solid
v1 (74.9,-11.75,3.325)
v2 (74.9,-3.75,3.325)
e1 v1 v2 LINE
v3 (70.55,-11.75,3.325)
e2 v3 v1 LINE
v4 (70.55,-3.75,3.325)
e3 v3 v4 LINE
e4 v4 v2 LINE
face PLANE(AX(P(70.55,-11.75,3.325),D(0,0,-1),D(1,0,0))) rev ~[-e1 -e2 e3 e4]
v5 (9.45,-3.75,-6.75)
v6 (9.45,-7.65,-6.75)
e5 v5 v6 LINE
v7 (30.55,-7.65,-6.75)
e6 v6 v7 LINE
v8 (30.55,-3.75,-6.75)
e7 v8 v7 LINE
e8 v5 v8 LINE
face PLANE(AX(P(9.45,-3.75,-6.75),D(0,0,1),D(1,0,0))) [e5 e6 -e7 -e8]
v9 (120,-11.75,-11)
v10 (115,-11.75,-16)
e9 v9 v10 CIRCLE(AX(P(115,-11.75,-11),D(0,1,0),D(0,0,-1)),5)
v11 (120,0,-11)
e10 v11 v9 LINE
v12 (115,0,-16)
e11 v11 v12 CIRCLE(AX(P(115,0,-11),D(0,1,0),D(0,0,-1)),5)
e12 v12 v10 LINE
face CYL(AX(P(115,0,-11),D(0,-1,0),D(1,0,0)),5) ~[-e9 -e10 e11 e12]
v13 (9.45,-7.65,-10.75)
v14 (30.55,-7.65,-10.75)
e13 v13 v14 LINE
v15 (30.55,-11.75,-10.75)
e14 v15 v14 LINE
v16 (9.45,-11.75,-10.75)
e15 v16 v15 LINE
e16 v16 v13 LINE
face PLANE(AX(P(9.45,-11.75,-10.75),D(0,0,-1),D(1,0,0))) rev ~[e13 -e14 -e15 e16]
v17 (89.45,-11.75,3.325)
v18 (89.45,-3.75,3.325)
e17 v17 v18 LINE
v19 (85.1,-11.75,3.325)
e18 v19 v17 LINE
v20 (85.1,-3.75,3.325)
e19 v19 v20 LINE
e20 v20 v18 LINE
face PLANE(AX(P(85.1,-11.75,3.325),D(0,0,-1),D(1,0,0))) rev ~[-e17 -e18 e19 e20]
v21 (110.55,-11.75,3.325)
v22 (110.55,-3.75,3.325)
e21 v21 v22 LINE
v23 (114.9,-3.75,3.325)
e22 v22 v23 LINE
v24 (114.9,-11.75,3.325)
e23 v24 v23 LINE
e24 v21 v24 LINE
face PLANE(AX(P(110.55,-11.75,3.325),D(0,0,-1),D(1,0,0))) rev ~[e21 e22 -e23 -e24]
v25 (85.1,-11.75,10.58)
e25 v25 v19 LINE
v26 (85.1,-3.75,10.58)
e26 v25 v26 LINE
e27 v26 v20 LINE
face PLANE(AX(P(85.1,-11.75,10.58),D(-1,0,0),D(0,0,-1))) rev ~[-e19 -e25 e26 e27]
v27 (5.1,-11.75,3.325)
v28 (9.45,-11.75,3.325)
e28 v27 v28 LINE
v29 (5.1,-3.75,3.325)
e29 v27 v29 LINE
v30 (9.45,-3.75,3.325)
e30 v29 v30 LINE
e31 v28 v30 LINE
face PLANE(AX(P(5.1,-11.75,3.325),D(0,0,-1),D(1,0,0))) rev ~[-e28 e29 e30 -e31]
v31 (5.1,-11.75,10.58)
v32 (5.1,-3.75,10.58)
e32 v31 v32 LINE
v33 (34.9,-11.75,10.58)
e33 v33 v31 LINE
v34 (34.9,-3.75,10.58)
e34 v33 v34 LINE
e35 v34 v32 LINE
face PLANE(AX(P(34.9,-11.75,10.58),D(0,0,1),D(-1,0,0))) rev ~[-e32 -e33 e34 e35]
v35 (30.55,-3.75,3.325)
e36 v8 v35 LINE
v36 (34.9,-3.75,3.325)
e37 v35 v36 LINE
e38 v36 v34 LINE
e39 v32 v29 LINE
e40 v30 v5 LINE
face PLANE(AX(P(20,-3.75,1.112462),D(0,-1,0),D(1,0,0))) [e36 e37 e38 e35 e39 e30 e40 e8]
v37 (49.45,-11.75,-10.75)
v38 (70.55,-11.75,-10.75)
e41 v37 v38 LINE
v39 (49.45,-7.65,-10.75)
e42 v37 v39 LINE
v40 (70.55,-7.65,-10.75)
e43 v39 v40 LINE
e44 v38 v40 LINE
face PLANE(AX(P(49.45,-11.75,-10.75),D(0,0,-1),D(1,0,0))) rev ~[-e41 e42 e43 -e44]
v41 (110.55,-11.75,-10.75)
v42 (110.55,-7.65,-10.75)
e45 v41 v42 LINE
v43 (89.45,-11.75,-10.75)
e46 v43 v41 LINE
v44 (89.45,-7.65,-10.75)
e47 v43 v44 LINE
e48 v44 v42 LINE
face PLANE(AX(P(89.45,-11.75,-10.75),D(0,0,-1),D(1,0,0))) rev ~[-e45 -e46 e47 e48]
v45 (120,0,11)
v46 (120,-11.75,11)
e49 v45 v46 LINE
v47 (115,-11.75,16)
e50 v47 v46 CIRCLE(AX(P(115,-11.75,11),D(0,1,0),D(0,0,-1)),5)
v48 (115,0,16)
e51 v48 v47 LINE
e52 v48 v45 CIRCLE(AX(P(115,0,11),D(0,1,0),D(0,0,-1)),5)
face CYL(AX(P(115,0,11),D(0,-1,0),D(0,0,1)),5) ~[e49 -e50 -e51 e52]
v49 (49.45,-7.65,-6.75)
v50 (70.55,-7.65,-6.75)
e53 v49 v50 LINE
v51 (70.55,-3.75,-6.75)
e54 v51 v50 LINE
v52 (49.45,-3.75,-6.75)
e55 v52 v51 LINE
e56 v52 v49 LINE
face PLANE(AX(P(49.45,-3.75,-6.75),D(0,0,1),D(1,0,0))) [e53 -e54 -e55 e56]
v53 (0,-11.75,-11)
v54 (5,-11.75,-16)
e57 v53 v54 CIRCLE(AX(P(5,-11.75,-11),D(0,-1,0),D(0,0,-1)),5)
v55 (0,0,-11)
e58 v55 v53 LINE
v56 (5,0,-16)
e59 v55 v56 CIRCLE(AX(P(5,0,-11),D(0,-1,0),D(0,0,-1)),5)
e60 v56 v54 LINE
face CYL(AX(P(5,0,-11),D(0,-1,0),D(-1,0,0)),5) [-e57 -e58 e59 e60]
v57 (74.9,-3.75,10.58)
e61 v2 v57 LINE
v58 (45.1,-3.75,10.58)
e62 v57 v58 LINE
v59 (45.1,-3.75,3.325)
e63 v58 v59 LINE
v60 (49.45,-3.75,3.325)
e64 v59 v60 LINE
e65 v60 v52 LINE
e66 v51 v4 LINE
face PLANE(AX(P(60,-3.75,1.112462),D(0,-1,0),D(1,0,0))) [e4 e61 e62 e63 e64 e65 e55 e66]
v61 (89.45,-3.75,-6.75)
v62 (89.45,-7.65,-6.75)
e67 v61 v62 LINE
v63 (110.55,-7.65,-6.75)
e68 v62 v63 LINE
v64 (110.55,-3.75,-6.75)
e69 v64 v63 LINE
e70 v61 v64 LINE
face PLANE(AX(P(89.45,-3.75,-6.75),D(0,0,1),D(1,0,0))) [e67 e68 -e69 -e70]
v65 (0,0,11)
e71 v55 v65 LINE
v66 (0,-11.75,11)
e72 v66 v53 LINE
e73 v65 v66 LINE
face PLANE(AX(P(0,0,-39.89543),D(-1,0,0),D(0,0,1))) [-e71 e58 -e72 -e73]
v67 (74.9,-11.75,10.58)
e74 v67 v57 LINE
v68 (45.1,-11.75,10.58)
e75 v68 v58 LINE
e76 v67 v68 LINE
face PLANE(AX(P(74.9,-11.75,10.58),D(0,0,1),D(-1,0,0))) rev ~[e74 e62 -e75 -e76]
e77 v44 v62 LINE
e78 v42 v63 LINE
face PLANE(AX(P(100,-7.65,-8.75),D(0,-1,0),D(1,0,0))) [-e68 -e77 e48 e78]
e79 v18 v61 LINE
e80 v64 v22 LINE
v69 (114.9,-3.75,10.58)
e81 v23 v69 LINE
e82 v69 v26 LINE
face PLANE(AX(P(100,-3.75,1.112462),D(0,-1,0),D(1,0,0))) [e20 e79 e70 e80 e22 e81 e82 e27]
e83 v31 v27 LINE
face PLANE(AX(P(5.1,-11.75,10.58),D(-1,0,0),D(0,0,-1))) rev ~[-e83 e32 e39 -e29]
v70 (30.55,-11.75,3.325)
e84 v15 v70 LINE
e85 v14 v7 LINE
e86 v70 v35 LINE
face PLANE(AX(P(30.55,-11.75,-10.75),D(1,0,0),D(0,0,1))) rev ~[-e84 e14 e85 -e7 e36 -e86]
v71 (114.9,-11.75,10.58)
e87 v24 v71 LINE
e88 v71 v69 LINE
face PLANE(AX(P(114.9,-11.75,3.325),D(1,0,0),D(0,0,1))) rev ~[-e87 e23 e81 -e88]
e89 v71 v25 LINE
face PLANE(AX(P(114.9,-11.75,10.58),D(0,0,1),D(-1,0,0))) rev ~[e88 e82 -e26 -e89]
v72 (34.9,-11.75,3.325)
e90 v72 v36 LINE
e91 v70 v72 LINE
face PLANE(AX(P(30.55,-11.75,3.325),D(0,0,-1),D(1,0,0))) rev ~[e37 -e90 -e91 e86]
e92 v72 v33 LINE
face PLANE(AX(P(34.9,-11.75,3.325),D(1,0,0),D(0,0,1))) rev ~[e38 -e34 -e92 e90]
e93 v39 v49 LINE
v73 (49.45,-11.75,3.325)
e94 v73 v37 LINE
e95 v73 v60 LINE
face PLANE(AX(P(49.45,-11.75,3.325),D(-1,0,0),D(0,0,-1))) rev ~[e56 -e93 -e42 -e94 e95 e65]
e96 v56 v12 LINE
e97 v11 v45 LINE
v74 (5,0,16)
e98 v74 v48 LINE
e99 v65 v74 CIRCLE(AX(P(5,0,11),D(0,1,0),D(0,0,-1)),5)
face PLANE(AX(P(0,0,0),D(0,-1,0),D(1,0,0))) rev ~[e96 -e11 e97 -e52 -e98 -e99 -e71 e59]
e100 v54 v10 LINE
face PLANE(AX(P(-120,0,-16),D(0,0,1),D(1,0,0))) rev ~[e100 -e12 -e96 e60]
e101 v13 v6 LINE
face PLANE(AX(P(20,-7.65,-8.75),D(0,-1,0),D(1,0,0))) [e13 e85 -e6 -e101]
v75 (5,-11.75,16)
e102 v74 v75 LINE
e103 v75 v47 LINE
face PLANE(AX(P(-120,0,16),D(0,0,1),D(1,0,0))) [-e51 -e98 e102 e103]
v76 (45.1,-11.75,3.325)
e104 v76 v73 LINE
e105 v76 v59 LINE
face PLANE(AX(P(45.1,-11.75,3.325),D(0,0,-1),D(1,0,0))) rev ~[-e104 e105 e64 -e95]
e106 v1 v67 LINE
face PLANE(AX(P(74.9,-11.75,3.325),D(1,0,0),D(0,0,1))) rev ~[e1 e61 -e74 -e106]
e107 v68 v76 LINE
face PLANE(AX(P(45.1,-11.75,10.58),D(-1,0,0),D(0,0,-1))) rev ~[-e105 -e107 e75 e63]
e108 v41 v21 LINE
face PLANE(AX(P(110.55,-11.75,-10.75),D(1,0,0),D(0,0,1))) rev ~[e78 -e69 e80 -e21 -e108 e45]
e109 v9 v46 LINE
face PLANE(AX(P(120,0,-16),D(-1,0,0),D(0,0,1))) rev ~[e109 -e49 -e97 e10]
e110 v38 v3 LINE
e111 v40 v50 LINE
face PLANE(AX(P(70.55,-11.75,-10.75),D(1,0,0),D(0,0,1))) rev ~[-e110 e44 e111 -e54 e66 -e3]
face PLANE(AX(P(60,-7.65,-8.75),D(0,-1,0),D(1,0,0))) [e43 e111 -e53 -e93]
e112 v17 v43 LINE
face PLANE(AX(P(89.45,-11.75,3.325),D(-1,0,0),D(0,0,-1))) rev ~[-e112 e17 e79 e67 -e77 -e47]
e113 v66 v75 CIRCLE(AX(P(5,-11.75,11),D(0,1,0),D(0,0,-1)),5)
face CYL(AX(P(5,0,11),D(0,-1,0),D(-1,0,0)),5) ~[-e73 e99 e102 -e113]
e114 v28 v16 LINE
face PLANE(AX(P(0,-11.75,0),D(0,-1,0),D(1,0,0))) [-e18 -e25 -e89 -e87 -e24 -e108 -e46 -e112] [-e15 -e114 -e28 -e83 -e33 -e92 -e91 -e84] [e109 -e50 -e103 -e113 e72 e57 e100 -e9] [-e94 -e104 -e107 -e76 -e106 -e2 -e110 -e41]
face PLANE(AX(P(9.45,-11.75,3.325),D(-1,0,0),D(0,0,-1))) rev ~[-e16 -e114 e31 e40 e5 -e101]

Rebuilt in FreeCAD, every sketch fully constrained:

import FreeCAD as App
import Part
import Sketcher

V = App.Vector


def edges_at(feature, points):
    """Names of the edges that pass closest to the given points."""
    edges = feature.Shape.Edges
    near = lambda p: min(range(len(edges)), key=lambda i: edges[i].distToShape(Part.Vertex(*p))[0])
    return sorted({f"Edge{near(p) + 1}" for p in points})


def add_polygon(sketch, points):
    """Adds a closed chain of lines whose ends are joined by coincident constraints."""
    first, n = sketch.GeometryCount, len(points)
    for a, b in zip(points, points[1:] + points[:1]):
        sketch.addGeometry(Part.LineSegment(App.Vector(*a, 0), App.Vector(*b, 0)), False)
    for i in range(n):
        sketch.addConstraint(Sketcher.Constraint("Coincident", first + i, 2, first + (i + 1) % n, 1))

doc = App.newDocument("Part")
body = doc.addObject("PartDesign::Body", "Body")

# Sketch on XZ plane
sketch1 = doc.addObject("Sketcher::SketchObject", "Sketch")
body.addObject(sketch1)
sketch1.AttachmentSupport = (doc.XZ_Plane, [""])
sketch1.MapMode = "FlatFace"
add_polygon(sketch1, [(-120, 16), (-120, -16), (120, -16), (120, 16)])  # lines 0-3
sketch1.addConstraint([
    Sketcher.Constraint("Vertical", 0),
    Sketcher.Constraint("Horizontal", 1),
    Sketcher.Constraint("Vertical", 2),
    Sketcher.Constraint("Horizontal", 3),
    Sketcher.Constraint("Symmetric", 0, 2, 2, 2, -1, 1),
    Sketcher.Constraint("DistanceX", 1, 1, 1, 2, 240.0),
    Sketcher.Constraint("DistanceY", 0, 2, 0, 1, 32.0),
])
pad1 = doc.addObject("PartDesign::Pad", "Pad")
body.addObject(pad1)
pad1.Profile = sketch1
pad1.Length = 11.75

# Sketch on XZ plane
sketch2 = doc.addObject("Sketcher::SketchObject", "Sketch001")
body.addObject(sketch2)
sketch2.AttachmentSupport = (doc.XZ_Plane, [""])
sketch2.MapMode = "FlatFace"
sketch2.AttachmentOffset = App.Placement(V(0, 0, 11.75), App.Rotation())
add_polygon(sketch2, [(114.9, 10.6), (85.1, 10.6), (85.1, 3.3), (89.5, 3.3), (89.5, -10.8), (110.5, -10.8), (110.5, 3.3), (114.9, 3.3)])  # lines 0-7
add_polygon(sketch2, [(74.9, 10.6), (45.1, 10.6), (45.1, 3.3), (49.5, 3.3), (49.5, -10.8), (70.5, -10.8), (70.5, 3.3), (74.9, 3.3)])  # lines 8-15
add_polygon(sketch2, [(34.9, 10.6), (5.1, 10.6), (5.1, 3.3), (9.4, 3.3), (9.4, -10.8), (30.6, -10.8), (30.6, 3.3), (34.9, 3.3)])  # lines 16-23
add_polygon(sketch2, [(-5.1, 10.6), (-34.9, 10.6), (-34.9, 3.3), (-30.6, 3.3), (-30.6, -10.8), (-9.4, -10.8), (-9.4, 3.3), (-5.1, 3.3)])  # lines 24-31
add_polygon(sketch2, [(-45.1, 10.6), (-74.9, 10.6), (-74.9, 3.3), (-70.5, 3.3), (-70.5, -10.8), (-49.5, -10.8), (-49.5, 3.3), (-45.1, 3.3)])  # lines 32-39
add_polygon(sketch2, [(-85.1, 10.6), (-114.9, 10.6), (-114.9, 3.3), (-110.5, 3.3), (-110.5, -10.8), (-89.5, -10.8), (-89.5, 3.3), (-85.1, 3.3)])  # lines 40-47
sketch2.addConstraint([
    Sketcher.Constraint("Horizontal", 0),
    Sketcher.Constraint("Vertical", 1),
    Sketcher.Constraint("Horizontal", 2),
    Sketcher.Constraint("Vertical", 3),
    Sketcher.Constraint("Horizontal", 4),
    Sketcher.Constraint("Vertical", 5),
    Sketcher.Constraint("Horizontal", 6),
    Sketcher.Constraint("Vertical", 7),
    Sketcher.Constraint("Horizontal", 8),
    Sketcher.Constraint("Vertical", 9),
    Sketcher.Constraint("Horizontal", 10),
    Sketcher.Constraint("Vertical", 11),
    Sketcher.Constraint("Horizontal", 12),
    Sketcher.Constraint("Vertical", 13),
    Sketcher.Constraint("Horizontal", 14),
    Sketcher.Constraint("Vertical", 15),
    Sketcher.Constraint("Horizontal", 16),
    Sketcher.Constraint("Vertical", 17),
    Sketcher.Constraint("Horizontal", 18),
    Sketcher.Constraint("Vertical", 19),
    Sketcher.Constraint("Horizontal", 20),
    Sketcher.Constraint("Vertical", 21),
    Sketcher.Constraint("Horizontal", 22),
    Sketcher.Constraint("Vertical", 23),
    Sketcher.Constraint("Horizontal", 24),
    Sketcher.Constraint("Vertical", 25),
    Sketcher.Constraint("Horizontal", 26),
    Sketcher.Constraint("Vertical", 27),
    Sketcher.Constraint("Horizontal", 28),
    Sketcher.Constraint("Vertical", 29),
    Sketcher.Constraint("Horizontal", 30),
    Sketcher.Constraint("Vertical", 31),
    Sketcher.Constraint("Horizontal", 32),
    Sketcher.Constraint("Vertical", 33),
    Sketcher.Constraint("Horizontal", 34),
    Sketcher.Constraint("Vertical", 35),
    Sketcher.Constraint("Horizontal", 36),
    Sketcher.Constraint("Vertical", 37),
    Sketcher.Constraint("Horizontal", 38),
    Sketcher.Constraint("Vertical", 39),
    Sketcher.Constraint("Horizontal", 40),
    Sketcher.Constraint("Vertical", 41),
    Sketcher.Constraint("Horizontal", 42),
    Sketcher.Constraint("Vertical", 43),
    Sketcher.Constraint("Horizontal", 44),
    Sketcher.Constraint("Vertical", 45),
    Sketcher.Constraint("Horizontal", 46),
    Sketcher.Constraint("Vertical", 47),
    Sketcher.Constraint("Symmetric", 23, 2, 24, 2, -2),
    Sketcher.Constraint("Symmetric", 21, 2, 26, 2, -2),
    Sketcher.Constraint("Symmetric", 19, 2, 28, 2, -2),
    Sketcher.Constraint("Symmetric", 17, 2, 30, 2, -2),
    Sketcher.Constraint("Symmetric", 15, 2, 32, 2, -2),
    Sketcher.Constraint("Symmetric", 13, 2, 34, 2, -2),
    Sketcher.Constraint("Symmetric", 11, 2, 36, 2, -2),
    Sketcher.Constraint("Symmetric", 9, 2, 38, 2, -2),
    Sketcher.Constraint("Symmetric", 7, 2, 40, 2, -2),
    Sketcher.Constraint("Symmetric", 5, 2, 42, 2, -2),
    Sketcher.Constraint("Symmetric", 3, 2, 44, 2, -2),
    Sketcher.Constraint("Symmetric", 1, 2, 46, 2, -2),
    Sketcher.Constraint("Horizontal", 2, 2, 5, 2),
    Sketcher.Constraint("Horizontal", 7, 2, 8, 2),
    Sketcher.Constraint("Horizontal", 6, 2, 9, 2),
    Sketcher.Constraint("Horizontal", 4, 2, 11, 2),
    Sketcher.Constraint("Horizontal", 10, 2, 13, 2),
    Sketcher.Constraint("Horizontal", 15, 2, 16, 2),
    Sketcher.Constraint("Horizontal", 14, 2, 17, 2),
    Sketcher.Constraint("Horizontal", 12, 2, 19, 2),
    Sketcher.Constraint("Horizontal", 18, 2, 21, 2),
    Sketcher.Constraint("Equal", 2, 6),
    Sketcher.Constraint("Equal", 0, 8),
    Sketcher.Constraint("Equal", 6, 10),
    Sketcher.Constraint("Equal", 4, 12),
    Sketcher.Constraint("Equal", 8, 16),
    Sketcher.Constraint("Equal", 14, 18),
    Sketcher.Constraint("Equal", 12, 20),
    Sketcher.Constraint("DistanceX", 0, 2, 0, 1, 29.8),
    Sketcher.Constraint("DistanceX", 4, 1, 4, 2, 21.1),
    Sketcher.Constraint("DistanceX", 8, 2, 0, 2, 40.0),
    Sketcher.Constraint("DistanceX", 16, 2, 8, 2, 40.0),
    Sketcher.Constraint("DistanceX", 24, 2, 16, 2, 40.0),
    Sketcher.Constraint("DistanceY", 1, 2, 1, 1, 7.255),
    Sketcher.Constraint("DistanceY", 3, 2, 3, 1, 14.075),
    Sketcher.Constraint("DistanceY", -1, 1, 0, 2, 10.58),
])
pocket1 = doc.addObject("PartDesign::Pocket", "Pocket")
body.addObject(pocket1)
pocket1.Profile = sketch2
pocket1.Length = 8

# Sketch on XZ plane
sketch3 = doc.addObject("Sketcher::SketchObject", "Sketch002")
body.addObject(sketch3)
sketch3.AttachmentSupport = (doc.XZ_Plane, [""])
sketch3.MapMode = "FlatFace"
sketch3.AttachmentOffset = App.Placement(V(0, 0, 3.75), App.Rotation())
add_polygon(sketch3, [(89.5, -6.8), (89.5, -10.8), (110.5, -10.8), (110.5, -6.8)])  # lines 0-3
add_polygon(sketch3, [(49.5, -6.8), (49.5, -10.8), (70.5, -10.8), (70.5, -6.8)])  # lines 4-7
add_polygon(sketch3, [(9.4, -6.8), (9.4, -10.8), (30.6, -10.8), (30.6, -6.8)])  # lines 8-11
add_polygon(sketch3, [(-30.6, -6.8), (-30.6, -10.8), (-9.4, -10.8), (-9.4, -6.8)])  # lines 12-15
add_polygon(sketch3, [(-70.5, -6.8), (-70.5, -10.8), (-49.5, -10.8), (-49.5, -6.8)])  # lines 16-19
add_polygon(sketch3, [(-110.5, -6.8), (-110.5, -10.8), (-89.5, -10.8), (-89.5, -6.8)])  # lines 20-23
sketch3.addConstraint([
    Sketcher.Constraint("Vertical", 0),
    Sketcher.Constraint("Horizontal", 1),
    Sketcher.Constraint("Vertical", 2),
    Sketcher.Constraint("Horizontal", 3),
    Sketcher.Constraint("Vertical", 4),
    Sketcher.Constraint("Horizontal", 5),
    Sketcher.Constraint("Vertical", 6),
    Sketcher.Constraint("Horizontal", 7),
    Sketcher.Constraint("Vertical", 8),
    Sketcher.Constraint("Horizontal", 9),
    Sketcher.Constraint("Vertical", 10),
    Sketcher.Constraint("Horizontal", 11),
    Sketcher.Constraint("Vertical", 12),
    Sketcher.Constraint("Horizontal", 13),
    Sketcher.Constraint("Vertical", 14),
    Sketcher.Constraint("Horizontal", 15),
    Sketcher.Constraint("Vertical", 16),
    Sketcher.Constraint("Horizontal", 17),
    Sketcher.Constraint("Vertical", 18),
    Sketcher.Constraint("Horizontal", 19),
    Sketcher.Constraint("Vertical", 20),
    Sketcher.Constraint("Horizontal", 21),
    Sketcher.Constraint("Vertical", 22),
    Sketcher.Constraint("Horizontal", 23),
    Sketcher.Constraint("Symmetric", 9, 2, 12, 2, -2),
    Sketcher.Constraint("Symmetric", 11, 2, 14, 2, -2),
    Sketcher.Constraint("Symmetric", 5, 2, 16, 2, -2),
    Sketcher.Constraint("Symmetric", 7, 2, 18, 2, -2),
    Sketcher.Constraint("Symmetric", 1, 2, 20, 2, -2),
    Sketcher.Constraint("Symmetric", 3, 2, 22, 2, -2),
    Sketcher.Constraint("Horizontal", 1, 2, 4, 2),
    Sketcher.Constraint("Horizontal", 3, 2, 6, 2),
    Sketcher.Constraint("Horizontal", 5, 2, 8, 2),
    Sketcher.Constraint("Horizontal", 7, 2, 10, 2),
    Sketcher.Constraint("Equal", 3, 5),
    Sketcher.Constraint("Equal", 7, 9),
    Sketcher.Constraint("DistanceY", 0, 2, 0, 1, 4.0),
    Sketcher.Constraint("DistanceX", 1, 1, 1, 2, 21.1),
    Sketcher.Constraint("DistanceX", 4, 2, 0, 2, 40.0),
    Sketcher.Constraint("DistanceX", 8, 2, 4, 2, 40.0),
    Sketcher.Constraint("DistanceX", 12, 2, 8, 2, 40.0),
    Sketcher.Constraint("DistanceY", 0, 2, -1, 1, 10.75),
])
pad2 = doc.addObject("PartDesign::Pad", "Pad001")
body.addObject(pad2)
pad2.Profile = sketch3
pad2.Length = 3.9

# Sketch on XZ plane
sketch4 = doc.addObject("Sketcher::SketchObject", "Sketch003")
body.addObject(sketch4)
sketch4.AttachmentSupport = (doc.XZ_Plane, [""])
sketch4.MapMode = "FlatFace"
add_polygon(sketch4, [(-130, 40), (-130, -40), (0, -40), (0, 40)])  # lines 0-3
sketch4.addConstraint([
    Sketcher.Constraint("Vertical", 0),
    Sketcher.Constraint("Horizontal", 1),
    Sketcher.Constraint("Vertical", 2),
    Sketcher.Constraint("Horizontal", 3),
    Sketcher.Constraint("PointOnObject", 1, 2, -2),
    Sketcher.Constraint("DistanceX", 1, 1, 1, 2, 130.0),
    Sketcher.Constraint("DistanceY", 0, 2, 0, 1, 80.0),
    Sketcher.Constraint("DistanceY", 0, 2, -1, 1, 39.89543),
])
pocket2 = doc.addObject("PartDesign::Pocket", "Pocket001")
body.addObject(pocket2)
pocket2.Profile = sketch4
pocket2.Length = 30
pocket2.Reversed = True
doc.recompute()

fillet = doc.addObject("PartDesign::Fillet", "Fillet")
body.addObject(fillet)
fillet.Base = (pocket2, edges_at(pocket2, [
    (120, -5.875, -16),
    (120, -5.875, 16),
    (0, -5.875, -16),
    (0, -5.875, 16),
]))
fillet.Radius = 5

doc.recompute()
